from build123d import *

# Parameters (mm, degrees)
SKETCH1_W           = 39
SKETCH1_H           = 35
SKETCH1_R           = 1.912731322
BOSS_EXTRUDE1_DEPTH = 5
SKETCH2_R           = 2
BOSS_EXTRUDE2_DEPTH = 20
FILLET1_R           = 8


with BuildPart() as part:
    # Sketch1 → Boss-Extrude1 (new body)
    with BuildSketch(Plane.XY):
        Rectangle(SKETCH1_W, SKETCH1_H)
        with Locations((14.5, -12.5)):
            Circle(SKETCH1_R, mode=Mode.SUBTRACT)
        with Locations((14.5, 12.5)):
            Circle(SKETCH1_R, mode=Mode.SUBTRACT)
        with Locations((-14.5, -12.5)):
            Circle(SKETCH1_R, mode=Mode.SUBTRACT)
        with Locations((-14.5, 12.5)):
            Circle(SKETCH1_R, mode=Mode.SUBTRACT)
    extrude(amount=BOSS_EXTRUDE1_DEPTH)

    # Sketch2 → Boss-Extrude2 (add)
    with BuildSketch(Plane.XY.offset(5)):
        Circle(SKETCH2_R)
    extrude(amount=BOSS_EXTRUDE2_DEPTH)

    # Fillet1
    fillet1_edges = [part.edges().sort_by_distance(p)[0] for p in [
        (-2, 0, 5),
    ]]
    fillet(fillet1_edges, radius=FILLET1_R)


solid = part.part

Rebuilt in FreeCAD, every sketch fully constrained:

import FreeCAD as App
import Part
import Sketcher


def edges_at(feature, points):
    """Names of the edges that pass closest to the given points."""
    edges = feature.Shape.Edges
    near = lambda p: min(range(len(edges)), key=lambda i: edges[i].distToShape(Part.Vertex(*p))[0])
    return sorted({f"Edge{near(p) + 1}" for p in points})


def add_polygon(sketch, points):
    """Adds a closed chain of lines whose ends are joined by coincident constraints."""
    first, n = sketch.GeometryCount, len(points)
    for a, b in zip(points, points[1:] + points[:1]):
        sketch.addGeometry(Part.LineSegment(App.Vector(*a, 0), App.Vector(*b, 0)), False)
    for i in range(n):
        sketch.addConstraint(Sketcher.Constraint("Coincident", first + i, 2, first + (i + 1) % n, 1))

doc = App.newDocument("Part")
params = doc.addObject("Spreadsheet::Sheet", "Params")
for row, (alias, value) in enumerate([
    ("sketch1_width", "39 mm"),
    ("sketch1_height", "35 mm"),
    ("pad1_length", "5 mm"),
    ("sketch2_diameter", "4 mm"),
    ("pad2_length", "20 mm"),
    ("fillet_radius", "8 mm"),
], start=1):
    params.set(f"A{row}", alias)
    params.set(f"B{row}", "=" + value)
    params.setAlias(f"B{row}", alias)

body = doc.addObject("PartDesign::Body", "Body")

sketch1 = body.newObject("Sketcher::SketchObject", "Sketch")
sketch1.AttachmentSupport = (doc.getObject("XY_Plane"), [""])
sketch1.MapMode = "FlatFace"
add_polygon(sketch1, [(-19.5, 17.5), (-19.5, -17.5), (19.5, -17.5), (19.5, 17.5)])
sketch1.addGeometry(Part.Circle(App.Vector(-14.5, -12.5, 0), App.Vector(0, 0, 1), 1.9), False)
sketch1.addGeometry(Part.Circle(App.Vector(14.5, -12.5, 0), App.Vector(0, 0, 1), 1.9), False)
sketch1.addGeometry(Part.Circle(App.Vector(-14.5, 12.5, 0), App.Vector(0, 0, 1), 1.9), False)
sketch1.addGeometry(Part.Circle(App.Vector(14.5, 12.5, 0), App.Vector(0, 0, 1), 1.9), False)
sketch1.addConstraint([
    Sketcher.Constraint("Vertical", 0),
    Sketcher.Constraint("Horizontal", 1),
    Sketcher.Constraint("Vertical", 2),
    Sketcher.Constraint("Horizontal", 3),
    Sketcher.Constraint("Equal", 4, 5),
    Sketcher.Constraint("Equal", 5, 6),
    Sketcher.Constraint("Equal", 6, 7),
    Sketcher.Constraint("Symmetric", 5, 3, 6, 3, -1, 1),
    Sketcher.Constraint("Symmetric", 4, 3, 7, 3, -1, 1),
    Sketcher.Constraint("Symmetric", 0, 2, 2, 2, -1, 1),
    Sketcher.Constraint("Symmetric", 4, 3, 5, 3, -2),
    Sketcher.Constraint("DistanceX", 1, 1, 1, 2, 39.0),
    Sketcher.Constraint("DistanceY", 0, 2, 0, 1, 35.0),
    Sketcher.Constraint("DistanceX", 4, 3, 5, 3, 29.0),
    Sketcher.Constraint("DistanceY", 4, 3, 6, 3, 25.0),
    Sketcher.Constraint("Diameter", 4, 3.825463),
])
sketch1.setExpression("Constraints[15]", "Params.sketch1_width")
sketch1.setExpression("Constraints[16]", "Params.sketch1_height")
pad1 = body.newObject("PartDesign::Pad", "Pad")
pad1.Profile = sketch1
pad1.setExpression("Length", "Params.pad1_length")

sketch2 = body.newObject("Sketcher::SketchObject", "Sketch001")
sketch2.AttachmentSupport = (doc.getObject("XY_Plane"), [""])
sketch2.MapMode = "FlatFace"
sketch2.AttachmentOffset = App.Placement(App.Vector(0, 0, 5), App.Rotation())
sketch2.addGeometry(Part.Circle(App.Vector(0, 0, 0), App.Vector(0, 0, 1), 2), False)
sketch2.addConstraint([
    Sketcher.Constraint("Coincident", 0, 3, -1, 1),
    Sketcher.Constraint("Diameter", 0, 4.0),
])
sketch2.setExpression("Constraints[1]", "Params.sketch2_diameter")
pad2 = body.newObject("PartDesign::Pad", "Pad001")
pad2.Profile = sketch2
pad2.setExpression("Length", "Params.pad2_length")
doc.recompute()

fillet = body.newObject("PartDesign::Fillet", "Fillet")
fillet.Base = (pad2, edges_at(pad2, [(-2, 0, 5)]))
fillet.setExpression("Radius", "Params.fillet_radius")

doc.recompute()
